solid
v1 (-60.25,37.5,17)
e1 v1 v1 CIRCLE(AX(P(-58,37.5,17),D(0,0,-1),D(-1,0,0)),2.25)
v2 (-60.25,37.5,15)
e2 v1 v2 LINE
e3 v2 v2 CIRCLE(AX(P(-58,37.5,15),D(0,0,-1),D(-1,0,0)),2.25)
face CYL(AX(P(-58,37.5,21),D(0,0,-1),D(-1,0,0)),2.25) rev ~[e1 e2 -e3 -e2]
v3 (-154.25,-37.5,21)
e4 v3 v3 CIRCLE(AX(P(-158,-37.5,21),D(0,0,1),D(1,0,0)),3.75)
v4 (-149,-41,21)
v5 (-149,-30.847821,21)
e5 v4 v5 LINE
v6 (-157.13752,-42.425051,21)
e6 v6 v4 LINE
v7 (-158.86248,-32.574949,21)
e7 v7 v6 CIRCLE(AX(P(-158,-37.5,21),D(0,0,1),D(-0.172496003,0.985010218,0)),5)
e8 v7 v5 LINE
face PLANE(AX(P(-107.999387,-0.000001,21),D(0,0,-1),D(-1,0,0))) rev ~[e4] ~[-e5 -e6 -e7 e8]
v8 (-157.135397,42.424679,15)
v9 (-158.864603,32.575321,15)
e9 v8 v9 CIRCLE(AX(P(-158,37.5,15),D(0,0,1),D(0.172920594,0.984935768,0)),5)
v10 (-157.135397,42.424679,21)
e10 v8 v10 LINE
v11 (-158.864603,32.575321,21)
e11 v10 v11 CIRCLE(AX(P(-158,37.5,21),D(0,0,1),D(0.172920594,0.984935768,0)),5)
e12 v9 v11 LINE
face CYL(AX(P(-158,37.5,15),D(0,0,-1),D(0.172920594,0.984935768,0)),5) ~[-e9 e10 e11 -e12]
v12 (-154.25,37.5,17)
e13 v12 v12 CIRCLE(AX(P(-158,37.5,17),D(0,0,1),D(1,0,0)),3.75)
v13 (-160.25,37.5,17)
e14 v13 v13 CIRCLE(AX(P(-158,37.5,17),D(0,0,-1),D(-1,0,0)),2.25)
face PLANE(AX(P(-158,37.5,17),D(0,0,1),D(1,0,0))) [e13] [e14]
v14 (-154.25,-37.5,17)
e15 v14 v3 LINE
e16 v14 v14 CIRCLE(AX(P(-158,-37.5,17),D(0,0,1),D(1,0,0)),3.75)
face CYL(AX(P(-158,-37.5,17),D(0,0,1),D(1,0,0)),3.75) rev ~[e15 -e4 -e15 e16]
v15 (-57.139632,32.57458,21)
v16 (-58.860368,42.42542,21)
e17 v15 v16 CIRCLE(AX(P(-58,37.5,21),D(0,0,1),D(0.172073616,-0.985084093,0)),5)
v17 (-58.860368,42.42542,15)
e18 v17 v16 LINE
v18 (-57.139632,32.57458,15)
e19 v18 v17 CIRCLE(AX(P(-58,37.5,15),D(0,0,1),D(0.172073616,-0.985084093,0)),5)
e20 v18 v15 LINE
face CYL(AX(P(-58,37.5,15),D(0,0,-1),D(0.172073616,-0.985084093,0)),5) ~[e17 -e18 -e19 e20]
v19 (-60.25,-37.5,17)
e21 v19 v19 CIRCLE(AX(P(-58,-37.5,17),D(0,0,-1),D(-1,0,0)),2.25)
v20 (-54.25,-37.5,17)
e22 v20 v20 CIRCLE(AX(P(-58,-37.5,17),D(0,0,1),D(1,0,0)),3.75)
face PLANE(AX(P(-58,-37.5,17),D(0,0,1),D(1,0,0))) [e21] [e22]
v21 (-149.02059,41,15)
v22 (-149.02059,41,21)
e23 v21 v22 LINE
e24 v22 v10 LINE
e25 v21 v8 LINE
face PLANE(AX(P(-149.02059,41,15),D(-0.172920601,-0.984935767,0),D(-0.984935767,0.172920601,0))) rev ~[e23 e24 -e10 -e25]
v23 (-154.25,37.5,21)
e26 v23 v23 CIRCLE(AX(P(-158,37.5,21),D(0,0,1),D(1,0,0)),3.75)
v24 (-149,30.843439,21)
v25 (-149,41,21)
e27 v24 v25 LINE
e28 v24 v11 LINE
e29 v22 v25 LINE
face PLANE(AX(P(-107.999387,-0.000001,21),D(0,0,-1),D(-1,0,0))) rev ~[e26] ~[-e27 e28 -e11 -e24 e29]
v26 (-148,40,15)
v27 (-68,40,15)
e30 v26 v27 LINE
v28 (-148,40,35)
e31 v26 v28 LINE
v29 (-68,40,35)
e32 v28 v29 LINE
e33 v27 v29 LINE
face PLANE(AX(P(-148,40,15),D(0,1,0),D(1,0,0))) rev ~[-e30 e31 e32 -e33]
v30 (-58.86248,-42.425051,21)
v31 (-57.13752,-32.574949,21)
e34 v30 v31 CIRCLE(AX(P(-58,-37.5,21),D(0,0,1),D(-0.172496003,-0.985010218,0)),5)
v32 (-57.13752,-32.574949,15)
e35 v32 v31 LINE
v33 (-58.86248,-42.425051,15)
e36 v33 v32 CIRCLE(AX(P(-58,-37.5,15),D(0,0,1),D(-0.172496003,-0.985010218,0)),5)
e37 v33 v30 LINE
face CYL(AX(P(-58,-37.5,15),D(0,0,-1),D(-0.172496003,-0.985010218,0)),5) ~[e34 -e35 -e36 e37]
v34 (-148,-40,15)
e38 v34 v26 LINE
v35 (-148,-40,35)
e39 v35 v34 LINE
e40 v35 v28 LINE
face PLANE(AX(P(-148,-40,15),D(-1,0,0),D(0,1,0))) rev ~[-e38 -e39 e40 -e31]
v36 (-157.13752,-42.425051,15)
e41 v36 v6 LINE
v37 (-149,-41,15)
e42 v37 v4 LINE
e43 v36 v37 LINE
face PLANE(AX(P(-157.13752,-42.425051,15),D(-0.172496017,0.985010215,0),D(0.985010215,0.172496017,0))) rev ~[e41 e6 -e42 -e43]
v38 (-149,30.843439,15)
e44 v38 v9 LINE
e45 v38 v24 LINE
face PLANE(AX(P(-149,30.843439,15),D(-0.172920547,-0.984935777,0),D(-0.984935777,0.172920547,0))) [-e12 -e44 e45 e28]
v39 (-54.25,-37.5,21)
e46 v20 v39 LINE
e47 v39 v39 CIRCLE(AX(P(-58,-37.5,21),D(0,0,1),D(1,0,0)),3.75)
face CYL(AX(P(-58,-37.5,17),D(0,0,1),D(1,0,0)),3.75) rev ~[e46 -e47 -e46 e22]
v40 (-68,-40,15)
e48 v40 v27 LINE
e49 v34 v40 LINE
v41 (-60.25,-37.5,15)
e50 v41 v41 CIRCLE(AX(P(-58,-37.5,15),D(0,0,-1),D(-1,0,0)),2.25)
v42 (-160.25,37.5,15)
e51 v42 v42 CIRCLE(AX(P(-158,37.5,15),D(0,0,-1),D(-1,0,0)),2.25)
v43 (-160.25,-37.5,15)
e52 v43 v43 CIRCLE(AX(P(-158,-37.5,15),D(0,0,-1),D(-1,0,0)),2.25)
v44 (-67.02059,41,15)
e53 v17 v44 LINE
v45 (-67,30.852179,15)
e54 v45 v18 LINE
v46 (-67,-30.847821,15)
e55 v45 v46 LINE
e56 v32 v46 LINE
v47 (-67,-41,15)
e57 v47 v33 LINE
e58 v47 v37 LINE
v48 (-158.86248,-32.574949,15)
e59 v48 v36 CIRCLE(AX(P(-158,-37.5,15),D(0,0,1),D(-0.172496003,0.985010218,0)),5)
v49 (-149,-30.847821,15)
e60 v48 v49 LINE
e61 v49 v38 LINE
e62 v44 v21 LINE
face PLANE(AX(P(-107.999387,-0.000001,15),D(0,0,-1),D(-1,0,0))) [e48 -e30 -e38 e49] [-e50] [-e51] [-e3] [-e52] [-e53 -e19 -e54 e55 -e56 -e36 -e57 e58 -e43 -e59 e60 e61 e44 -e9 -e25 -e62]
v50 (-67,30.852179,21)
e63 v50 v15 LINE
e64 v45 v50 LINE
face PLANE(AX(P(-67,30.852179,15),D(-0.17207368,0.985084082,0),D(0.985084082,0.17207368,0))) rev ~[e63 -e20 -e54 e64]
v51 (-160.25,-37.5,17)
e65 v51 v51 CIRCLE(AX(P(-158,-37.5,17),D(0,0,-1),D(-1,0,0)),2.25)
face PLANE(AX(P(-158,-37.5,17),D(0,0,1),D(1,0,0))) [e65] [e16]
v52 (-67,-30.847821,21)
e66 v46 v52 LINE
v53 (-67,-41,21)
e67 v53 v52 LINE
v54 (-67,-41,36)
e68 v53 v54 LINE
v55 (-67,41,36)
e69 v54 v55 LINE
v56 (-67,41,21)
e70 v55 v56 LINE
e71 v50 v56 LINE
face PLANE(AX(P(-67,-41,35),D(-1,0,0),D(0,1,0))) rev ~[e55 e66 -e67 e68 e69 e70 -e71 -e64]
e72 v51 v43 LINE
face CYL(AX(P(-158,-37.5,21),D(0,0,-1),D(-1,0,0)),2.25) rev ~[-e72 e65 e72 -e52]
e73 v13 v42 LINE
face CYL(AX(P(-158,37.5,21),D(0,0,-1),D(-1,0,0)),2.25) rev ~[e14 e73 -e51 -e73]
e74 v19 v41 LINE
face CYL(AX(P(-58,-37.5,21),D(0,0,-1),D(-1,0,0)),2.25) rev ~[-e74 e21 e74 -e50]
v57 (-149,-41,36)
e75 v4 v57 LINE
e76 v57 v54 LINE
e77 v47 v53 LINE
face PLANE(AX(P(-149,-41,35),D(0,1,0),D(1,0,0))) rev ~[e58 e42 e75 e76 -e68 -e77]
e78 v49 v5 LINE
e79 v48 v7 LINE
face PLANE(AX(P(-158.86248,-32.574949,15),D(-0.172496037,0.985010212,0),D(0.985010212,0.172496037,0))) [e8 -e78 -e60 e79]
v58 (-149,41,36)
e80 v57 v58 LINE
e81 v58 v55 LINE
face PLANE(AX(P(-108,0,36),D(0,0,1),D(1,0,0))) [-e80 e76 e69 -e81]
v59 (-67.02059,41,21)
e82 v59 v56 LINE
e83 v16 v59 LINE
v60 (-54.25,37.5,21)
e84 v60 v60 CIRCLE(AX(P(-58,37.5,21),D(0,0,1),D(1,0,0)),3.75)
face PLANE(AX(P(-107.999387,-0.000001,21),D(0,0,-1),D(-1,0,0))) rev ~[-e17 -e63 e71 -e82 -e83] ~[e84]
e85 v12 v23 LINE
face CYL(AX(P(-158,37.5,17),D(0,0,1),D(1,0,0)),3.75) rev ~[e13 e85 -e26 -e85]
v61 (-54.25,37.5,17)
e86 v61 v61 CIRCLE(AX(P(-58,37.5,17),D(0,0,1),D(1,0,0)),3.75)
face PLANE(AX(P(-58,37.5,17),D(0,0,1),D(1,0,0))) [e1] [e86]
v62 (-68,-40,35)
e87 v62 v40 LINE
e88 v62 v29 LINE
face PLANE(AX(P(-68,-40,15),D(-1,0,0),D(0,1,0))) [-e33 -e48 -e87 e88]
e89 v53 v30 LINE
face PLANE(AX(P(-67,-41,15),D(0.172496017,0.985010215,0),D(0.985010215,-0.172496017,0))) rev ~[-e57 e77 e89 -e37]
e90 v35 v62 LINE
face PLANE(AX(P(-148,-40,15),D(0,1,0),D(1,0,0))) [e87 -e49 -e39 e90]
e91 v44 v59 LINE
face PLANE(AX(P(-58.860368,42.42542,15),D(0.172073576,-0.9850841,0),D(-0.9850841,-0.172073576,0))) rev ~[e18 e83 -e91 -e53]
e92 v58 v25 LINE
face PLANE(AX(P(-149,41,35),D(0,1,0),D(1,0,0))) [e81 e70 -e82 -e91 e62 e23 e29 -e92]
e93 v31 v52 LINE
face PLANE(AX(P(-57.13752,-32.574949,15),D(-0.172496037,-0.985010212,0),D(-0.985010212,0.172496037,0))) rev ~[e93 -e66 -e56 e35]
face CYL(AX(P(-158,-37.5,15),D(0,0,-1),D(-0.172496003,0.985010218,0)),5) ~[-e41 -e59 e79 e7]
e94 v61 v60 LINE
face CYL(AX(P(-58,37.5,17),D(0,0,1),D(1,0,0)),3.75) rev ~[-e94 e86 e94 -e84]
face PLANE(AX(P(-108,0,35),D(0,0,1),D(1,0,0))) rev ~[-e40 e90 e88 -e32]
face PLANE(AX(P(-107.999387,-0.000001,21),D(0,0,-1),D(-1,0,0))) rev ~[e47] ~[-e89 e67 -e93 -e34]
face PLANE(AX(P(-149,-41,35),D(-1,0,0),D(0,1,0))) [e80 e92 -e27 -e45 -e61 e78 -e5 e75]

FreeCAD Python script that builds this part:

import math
import FreeCAD as App
import Part
import Sketcher

V = App.Vector


def add_polygon(sketch, points):
    """Adds a closed chain of lines whose ends are joined by coincident constraints."""
    first, n = sketch.GeometryCount, len(points)
    for a, b in zip(points, points[1:] + points[:1]):
        sketch.addGeometry(Part.LineSegment(App.Vector(*a, 0), App.Vector(*b, 0)), False)
    for i in range(n):
        sketch.addConstraint(Sketcher.Constraint("Coincident", first + i, 2, first + (i + 1) % n, 1))

doc = App.newDocument("Part")
params = doc.addObject("Spreadsheet::Sheet", "Params")
for row, (alias, value) in enumerate([
    ("sketch1_radius", "5 mm"),
    ("sketch1_width", "82 mm"),
    ("sketch1_width2", "80 mm"),
    ("sketch1_height", "61.7 mm"),
    ("pad1_length", "6 mm"),
    ("sketch2_width", "82 mm"),
    ("sketch2_width2", "80 mm"),
    ("pad2_length", "20 mm"),
    ("sketch3_width", "82 mm"),
    ("pad3_length", "1 mm"),
    ("sketch4_diameter", "4.5 mm"),
    ("hole_diameter", "4.5 mm"),
    ("hole_depth", "24 mm"),
    ("hole_cbore_diameter", "7.5 mm"),
    ("hole_cbore_depth", "4 mm"),
], start=1):
    params.set(f"A{row}", alias)
    params.set(f"B{row}", "=" + value)
    params.setAlias(f"B{row}", alias)

body = doc.addObject("PartDesign::Body", "Body")

sketch1 = doc.addObject("Sketcher::SketchObject", "Sketch")
body.addObject(sketch1)
sketch1.AttachmentSupport = (doc.XY_Plane, [""])
sketch1.MapMode = "FlatFace"
sketch1.addGeometry(Part.LineSegment(V(40.97941, 41, 0), V(-41.02059, 41, 0)), False)
sketch1.addGeometry(Part.LineSegment(V(-41.02059, 41, 0), V(-49.135397, 42.424679, 0)), False)
sketch1.addGeometry(Part.ArcOfCircle(Part.Circle(V(-50, 37.5, 0), V(0, 0, 1), 5), math.radians(80.042328), math.radians(260.042328)), False)
sketch1.addGeometry(Part.LineSegment(V(-50.864603, 32.575321, 0), V(-41, 30.843439, 0)), False)
sketch1.addGeometry(Part.LineSegment(V(-41, 30.843439, 0), V(-41, -30.847821, 0)), False)
sketch1.addGeometry(Part.LineSegment(V(-41, -30.847821, 0), V(-50.86248, -32.574949, 0)), False)
sketch1.addGeometry(Part.ArcOfCircle(Part.Circle(V(-50, -37.5, 0), V(0, 0, 1), 5), math.radians(99.932974), math.radians(279.932974)), False)
sketch1.addGeometry(Part.LineSegment(V(-49.13752, -42.425051, 0), V(-41, -41, 0)), False)
sketch1.addGeometry(Part.LineSegment(V(-41, -41, 0), V(41, -41, 0)), False)
sketch1.addGeometry(Part.LineSegment(V(41, -41, 0), V(49.13752, -42.425051, 0)), False)
sketch1.addGeometry(Part.ArcOfCircle(Part.Circle(V(50, -37.5, 0), V(0, 0, 1), 5), math.radians(-99.932974), math.radians(80.067026)), False)
sketch1.addGeometry(Part.LineSegment(V(50.86248, -32.574949, 0), V(41, -30.847821, 0)), False)
sketch1.addGeometry(Part.LineSegment(V(41, -30.847821, 0), V(41, 30.852179, 0)), False)
sketch1.addGeometry(Part.LineSegment(V(41, 30.852179, 0), V(50.860368, 32.57458, 0)), False)
sketch1.addGeometry(Part.ArcOfCircle(Part.Circle(V(50, 37.5, 0), V(0, 0, 1), 5), math.radians(-80.091595), math.radians(99.908405)), False)
sketch1.addGeometry(Part.LineSegment(V(49.139632, 42.42542, 0), V(40.97941, 41, 0)), False)
add_polygon(sketch1, [(-40, -40), (-40, 40), (40, 40), (40, -40)])
sketch1.addConstraint([
    Sketcher.Constraint("Coincident", 0, 2, 1, 1),
    Sketcher.Constraint("Tangent", 1, 2, 2, 1),
    Sketcher.Constraint("Tangent", 2, 2, 3, 1),
    Sketcher.Constraint("Coincident", 3, 2, 4, 1),
    Sketcher.Constraint("Coincident", 4, 2, 5, 1),
    Sketcher.Constraint("Tangent", 5, 2, 6, 1),
    Sketcher.Constraint("Tangent", 6, 2, 7, 1),
    Sketcher.Constraint("Coincident", 7, 2, 8, 1),
    Sketcher.Constraint("Coincident", 8, 2, 9, 1),
    Sketcher.Constraint("Tangent", 9, 2, 10, 1),
    Sketcher.Constraint("Tangent", 10, 2, 11, 1),
    Sketcher.Constraint("Coincident", 11, 2, 12, 1),
    Sketcher.Constraint("Coincident", 12, 2, 13, 1),
    Sketcher.Constraint("Tangent", 13, 2, 14, 1),
    Sketcher.Constraint("Tangent", 14, 2, 15, 1),
    Sketcher.Constraint("Coincident", 15, 2, 0, 1),
    Sketcher.Constraint("Horizontal", 0),
    Sketcher.Constraint("Vertical", 4),
    Sketcher.Constraint("Horizontal", 8),
    Sketcher.Constraint("Vertical", 12),
    Sketcher.Constraint("Vertical", 16),
    Sketcher.Constraint("Horizontal", 17),
    Sketcher.Constraint("Vertical", 18),
    Sketcher.Constraint("Horizontal", 19),
    Sketcher.Constraint("Equal", 2, 6),
    Sketcher.Constraint("Equal", 6, 10),
    Sketcher.Constraint("Equal", 10, 14),
    Sketcher.Constraint("Symmetric", 2, 3, 10, 3, -1, 1),
    Sketcher.Constraint("Symmetric", 6, 3, 14, 3, -1, 1),
    Sketcher.Constraint("Symmetric", 16, 2, 18, 2, -1, 1),
    Sketcher.Constraint("Symmetric", 6, 3, 10, 3, -2),
    Sketcher.Constraint("Symmetric", 4, 2, 11, 2, -2),
    Sketcher.Constraint("Parallel", 1, 3),
    Sketcher.Constraint("Parallel", 5, 7),
    Sketcher.Constraint("Parallel", 9, 11),
    Sketcher.Constraint("Parallel", 13, 15),
    Sketcher.Constraint("Vertical", 4, 2, 7, 2),
    Sketcher.Constraint("Equal", 0, 8),
    Sketcher.Constraint("Equal", 19, 16),
    Sketcher.Constraint("Radius", 2, 5.0),
    Sketcher.Constraint("DistanceX", 0, 2, 0, 1, 82.0),
    Sketcher.Constraint("DistanceX", 17, 1, 17, 2, 80.0),
    Sketcher.Constraint("DistanceY", 12, 1, 12, 2, 61.7),
    Sketcher.Constraint("DistanceX", 2, 3, -1, 1, 50.0),
    Sketcher.Constraint("DistanceY", -1, 1, 0, 2, 41.0),
    Sketcher.Constraint("DistanceY", 7, 2, -1, 1, 41.0),
    Sketcher.Constraint("DistanceY", 6, 3, 2, 3, 75.0),
])
sketch1.setExpression("Constraints[43]", "Params.sketch1_radius")
sketch1.setExpression("Constraints[44]", "Params.sketch1_width")
sketch1.setExpression("Constraints[45]", "Params.sketch1_width2")
sketch1.setExpression("Constraints[46]", "Params.sketch1_height")
pad1 = doc.addObject("PartDesign::Pad", "Pad")
body.addObject(pad1)
pad1.Profile = sketch1
pad1.setExpression("Length", "Params.pad1_length")

sketch2 = doc.addObject("Sketcher::SketchObject", "Sketch001")
body.addObject(sketch2)
sketch2.AttachmentSupport = (doc.XY_Plane, [""])
sketch2.MapMode = "FlatFace"
add_polygon(sketch2, [(-41, 41), (-41, -41), (41, -41), (41, 41)])
add_polygon(sketch2, [(40, -40), (-40, -40), (-40, 40), (40, 40)])
sketch2.addConstraint([
    Sketcher.Constraint("Vertical", 0),
    Sketcher.Constraint("Horizontal", 1),
    Sketcher.Constraint("Vertical", 2),
    Sketcher.Constraint("Horizontal", 3),
    Sketcher.Constraint("Horizontal", 4),
    Sketcher.Constraint("Vertical", 5),
    Sketcher.Constraint("Horizontal", 6),
    Sketcher.Constraint("Vertical", 7),
    Sketcher.Constraint("Symmetric", 0, 2, 2, 2, -1, 1),
    Sketcher.Constraint("Symmetric", 4, 2, 6, 2, -1, 1),
    Sketcher.Constraint("Equal", 3, 0),
    Sketcher.Constraint("Equal", 6, 5),
    Sketcher.Constraint("DistanceX", 1, 1, 1, 2, 82.0),
    Sketcher.Constraint("DistanceX", 4, 2, 4, 1, 80.0),
])
sketch2.setExpression("Constraints[20]", "Params.sketch2_width")
sketch2.setExpression("Constraints[21]", "Params.sketch2_width2")
pad2 = doc.addObject("PartDesign::Pad", "Pad001")
body.addObject(pad2)
pad2.Profile = sketch2
pad2.setExpression("Length", "Params.pad2_length")

sketch3 = doc.addObject("Sketcher::SketchObject", "Sketch002")
body.addObject(sketch3)
sketch3.AttachmentSupport = (doc.XY_Plane, [""])
sketch3.MapMode = "FlatFace"
sketch3.AttachmentOffset = App.Placement(V(0, 0, 20), App.Rotation())
add_polygon(sketch3, [(-41, 41), (-41, -41), (41, -41), (41, 41)])
sketch3.addConstraint([
    Sketcher.Constraint("Vertical", 0),
    Sketcher.Constraint("Horizontal", 1),
    Sketcher.Constraint("Vertical", 2),
    Sketcher.Constraint("Horizontal", 3),
    Sketcher.Constraint("Symmetric", 0, 2, 2, 2, -1, 1),
    Sketcher.Constraint("Equal", 3, 0),
    Sketcher.Constraint("DistanceX", 1, 1, 1, 2, 82.0),
])
sketch3.setExpression("Constraints[10]", "Params.sketch3_width")
pad3 = doc.addObject("PartDesign::Pad", "Pad002")
body.addObject(pad3)
pad3.Profile = sketch3
pad3.setExpression("Length", "Params.pad3_length")

sketch4 = doc.addObject("Sketcher::SketchObject", "Sketch003")
body.addObject(sketch4)
sketch4.AttachmentSupport = (doc.XY_Plane, [""])
sketch4.MapMode = "FlatFace"
sketch4.AttachmentOffset = App.Placement(V(0, 0, 6), App.Rotation())
sketch4.addGeometry([
    Part.Circle(V(-50, 37.5, 0), V(0, 0, 1), 2.25),
    Part.Circle(V(50, 37.5, 0), V(0, 0, 1), 2.25),
    Part.Circle(V(50, -37.5, 0), V(0, 0, 1), 2.25),
    Part.Circle(V(-50, -37.5, 0), V(0, 0, 1), 2.25),
], False)
sketch4.addConstraint([
    Sketcher.Constraint("Equal", 0, 1),
    Sketcher.Constraint("Equal", 1, 2),
    Sketcher.Constraint("Equal", 2, 3),
    Sketcher.Constraint("Symmetric", 0, 3, 2, 3, -1, 1),
    Sketcher.Constraint("Symmetric", 1, 3, 3, 3, -1, 1),
    Sketcher.Constraint("Symmetric", 0, 3, 1, 3, -2),
    Sketcher.Constraint("Diameter", 0, 4.5),
    Sketcher.Constraint("DistanceX", 0, 3, -1, 1, 50.0),
    Sketcher.Constraint("DistanceY", 2, 3, 1, 3, 75.0),
])
sketch4.setExpression("Constraints[6]", "Params.sketch4_diameter")
doc.recompute()
hole = doc.addObject("PartDesign::Hole", "Hole")
body.addObject(hole)
hole.Profile = sketch4
hole.ThreadType = "None"
hole.setExpression("Diameter", "Params.hole_diameter")
hole.DepthType = "Dimension"
hole.setExpression("Depth", "Params.hole_depth")
hole.DrillPoint = "Flat"
hole.HoleCutType = "Counterbore"
hole.setExpression("HoleCutDiameter", "Params.hole_cbore_diameter")
hole.setExpression("HoleCutDepth", "Params.hole_cbore_depth")
body2 = doc.addObject("PartDesign::Body", "Body001")
doc.recompute()

body.Placement = App.Placement(V(-108, 0, 15), App.Rotation(V(0, 0, 1), 0))
boolean = doc.addObject("PartDesign::Boolean", "Boolean")
body2.addObject(boolean)
boolean.Type = "Fuse"
boolean.addObjects([body])

doc.recompute()
